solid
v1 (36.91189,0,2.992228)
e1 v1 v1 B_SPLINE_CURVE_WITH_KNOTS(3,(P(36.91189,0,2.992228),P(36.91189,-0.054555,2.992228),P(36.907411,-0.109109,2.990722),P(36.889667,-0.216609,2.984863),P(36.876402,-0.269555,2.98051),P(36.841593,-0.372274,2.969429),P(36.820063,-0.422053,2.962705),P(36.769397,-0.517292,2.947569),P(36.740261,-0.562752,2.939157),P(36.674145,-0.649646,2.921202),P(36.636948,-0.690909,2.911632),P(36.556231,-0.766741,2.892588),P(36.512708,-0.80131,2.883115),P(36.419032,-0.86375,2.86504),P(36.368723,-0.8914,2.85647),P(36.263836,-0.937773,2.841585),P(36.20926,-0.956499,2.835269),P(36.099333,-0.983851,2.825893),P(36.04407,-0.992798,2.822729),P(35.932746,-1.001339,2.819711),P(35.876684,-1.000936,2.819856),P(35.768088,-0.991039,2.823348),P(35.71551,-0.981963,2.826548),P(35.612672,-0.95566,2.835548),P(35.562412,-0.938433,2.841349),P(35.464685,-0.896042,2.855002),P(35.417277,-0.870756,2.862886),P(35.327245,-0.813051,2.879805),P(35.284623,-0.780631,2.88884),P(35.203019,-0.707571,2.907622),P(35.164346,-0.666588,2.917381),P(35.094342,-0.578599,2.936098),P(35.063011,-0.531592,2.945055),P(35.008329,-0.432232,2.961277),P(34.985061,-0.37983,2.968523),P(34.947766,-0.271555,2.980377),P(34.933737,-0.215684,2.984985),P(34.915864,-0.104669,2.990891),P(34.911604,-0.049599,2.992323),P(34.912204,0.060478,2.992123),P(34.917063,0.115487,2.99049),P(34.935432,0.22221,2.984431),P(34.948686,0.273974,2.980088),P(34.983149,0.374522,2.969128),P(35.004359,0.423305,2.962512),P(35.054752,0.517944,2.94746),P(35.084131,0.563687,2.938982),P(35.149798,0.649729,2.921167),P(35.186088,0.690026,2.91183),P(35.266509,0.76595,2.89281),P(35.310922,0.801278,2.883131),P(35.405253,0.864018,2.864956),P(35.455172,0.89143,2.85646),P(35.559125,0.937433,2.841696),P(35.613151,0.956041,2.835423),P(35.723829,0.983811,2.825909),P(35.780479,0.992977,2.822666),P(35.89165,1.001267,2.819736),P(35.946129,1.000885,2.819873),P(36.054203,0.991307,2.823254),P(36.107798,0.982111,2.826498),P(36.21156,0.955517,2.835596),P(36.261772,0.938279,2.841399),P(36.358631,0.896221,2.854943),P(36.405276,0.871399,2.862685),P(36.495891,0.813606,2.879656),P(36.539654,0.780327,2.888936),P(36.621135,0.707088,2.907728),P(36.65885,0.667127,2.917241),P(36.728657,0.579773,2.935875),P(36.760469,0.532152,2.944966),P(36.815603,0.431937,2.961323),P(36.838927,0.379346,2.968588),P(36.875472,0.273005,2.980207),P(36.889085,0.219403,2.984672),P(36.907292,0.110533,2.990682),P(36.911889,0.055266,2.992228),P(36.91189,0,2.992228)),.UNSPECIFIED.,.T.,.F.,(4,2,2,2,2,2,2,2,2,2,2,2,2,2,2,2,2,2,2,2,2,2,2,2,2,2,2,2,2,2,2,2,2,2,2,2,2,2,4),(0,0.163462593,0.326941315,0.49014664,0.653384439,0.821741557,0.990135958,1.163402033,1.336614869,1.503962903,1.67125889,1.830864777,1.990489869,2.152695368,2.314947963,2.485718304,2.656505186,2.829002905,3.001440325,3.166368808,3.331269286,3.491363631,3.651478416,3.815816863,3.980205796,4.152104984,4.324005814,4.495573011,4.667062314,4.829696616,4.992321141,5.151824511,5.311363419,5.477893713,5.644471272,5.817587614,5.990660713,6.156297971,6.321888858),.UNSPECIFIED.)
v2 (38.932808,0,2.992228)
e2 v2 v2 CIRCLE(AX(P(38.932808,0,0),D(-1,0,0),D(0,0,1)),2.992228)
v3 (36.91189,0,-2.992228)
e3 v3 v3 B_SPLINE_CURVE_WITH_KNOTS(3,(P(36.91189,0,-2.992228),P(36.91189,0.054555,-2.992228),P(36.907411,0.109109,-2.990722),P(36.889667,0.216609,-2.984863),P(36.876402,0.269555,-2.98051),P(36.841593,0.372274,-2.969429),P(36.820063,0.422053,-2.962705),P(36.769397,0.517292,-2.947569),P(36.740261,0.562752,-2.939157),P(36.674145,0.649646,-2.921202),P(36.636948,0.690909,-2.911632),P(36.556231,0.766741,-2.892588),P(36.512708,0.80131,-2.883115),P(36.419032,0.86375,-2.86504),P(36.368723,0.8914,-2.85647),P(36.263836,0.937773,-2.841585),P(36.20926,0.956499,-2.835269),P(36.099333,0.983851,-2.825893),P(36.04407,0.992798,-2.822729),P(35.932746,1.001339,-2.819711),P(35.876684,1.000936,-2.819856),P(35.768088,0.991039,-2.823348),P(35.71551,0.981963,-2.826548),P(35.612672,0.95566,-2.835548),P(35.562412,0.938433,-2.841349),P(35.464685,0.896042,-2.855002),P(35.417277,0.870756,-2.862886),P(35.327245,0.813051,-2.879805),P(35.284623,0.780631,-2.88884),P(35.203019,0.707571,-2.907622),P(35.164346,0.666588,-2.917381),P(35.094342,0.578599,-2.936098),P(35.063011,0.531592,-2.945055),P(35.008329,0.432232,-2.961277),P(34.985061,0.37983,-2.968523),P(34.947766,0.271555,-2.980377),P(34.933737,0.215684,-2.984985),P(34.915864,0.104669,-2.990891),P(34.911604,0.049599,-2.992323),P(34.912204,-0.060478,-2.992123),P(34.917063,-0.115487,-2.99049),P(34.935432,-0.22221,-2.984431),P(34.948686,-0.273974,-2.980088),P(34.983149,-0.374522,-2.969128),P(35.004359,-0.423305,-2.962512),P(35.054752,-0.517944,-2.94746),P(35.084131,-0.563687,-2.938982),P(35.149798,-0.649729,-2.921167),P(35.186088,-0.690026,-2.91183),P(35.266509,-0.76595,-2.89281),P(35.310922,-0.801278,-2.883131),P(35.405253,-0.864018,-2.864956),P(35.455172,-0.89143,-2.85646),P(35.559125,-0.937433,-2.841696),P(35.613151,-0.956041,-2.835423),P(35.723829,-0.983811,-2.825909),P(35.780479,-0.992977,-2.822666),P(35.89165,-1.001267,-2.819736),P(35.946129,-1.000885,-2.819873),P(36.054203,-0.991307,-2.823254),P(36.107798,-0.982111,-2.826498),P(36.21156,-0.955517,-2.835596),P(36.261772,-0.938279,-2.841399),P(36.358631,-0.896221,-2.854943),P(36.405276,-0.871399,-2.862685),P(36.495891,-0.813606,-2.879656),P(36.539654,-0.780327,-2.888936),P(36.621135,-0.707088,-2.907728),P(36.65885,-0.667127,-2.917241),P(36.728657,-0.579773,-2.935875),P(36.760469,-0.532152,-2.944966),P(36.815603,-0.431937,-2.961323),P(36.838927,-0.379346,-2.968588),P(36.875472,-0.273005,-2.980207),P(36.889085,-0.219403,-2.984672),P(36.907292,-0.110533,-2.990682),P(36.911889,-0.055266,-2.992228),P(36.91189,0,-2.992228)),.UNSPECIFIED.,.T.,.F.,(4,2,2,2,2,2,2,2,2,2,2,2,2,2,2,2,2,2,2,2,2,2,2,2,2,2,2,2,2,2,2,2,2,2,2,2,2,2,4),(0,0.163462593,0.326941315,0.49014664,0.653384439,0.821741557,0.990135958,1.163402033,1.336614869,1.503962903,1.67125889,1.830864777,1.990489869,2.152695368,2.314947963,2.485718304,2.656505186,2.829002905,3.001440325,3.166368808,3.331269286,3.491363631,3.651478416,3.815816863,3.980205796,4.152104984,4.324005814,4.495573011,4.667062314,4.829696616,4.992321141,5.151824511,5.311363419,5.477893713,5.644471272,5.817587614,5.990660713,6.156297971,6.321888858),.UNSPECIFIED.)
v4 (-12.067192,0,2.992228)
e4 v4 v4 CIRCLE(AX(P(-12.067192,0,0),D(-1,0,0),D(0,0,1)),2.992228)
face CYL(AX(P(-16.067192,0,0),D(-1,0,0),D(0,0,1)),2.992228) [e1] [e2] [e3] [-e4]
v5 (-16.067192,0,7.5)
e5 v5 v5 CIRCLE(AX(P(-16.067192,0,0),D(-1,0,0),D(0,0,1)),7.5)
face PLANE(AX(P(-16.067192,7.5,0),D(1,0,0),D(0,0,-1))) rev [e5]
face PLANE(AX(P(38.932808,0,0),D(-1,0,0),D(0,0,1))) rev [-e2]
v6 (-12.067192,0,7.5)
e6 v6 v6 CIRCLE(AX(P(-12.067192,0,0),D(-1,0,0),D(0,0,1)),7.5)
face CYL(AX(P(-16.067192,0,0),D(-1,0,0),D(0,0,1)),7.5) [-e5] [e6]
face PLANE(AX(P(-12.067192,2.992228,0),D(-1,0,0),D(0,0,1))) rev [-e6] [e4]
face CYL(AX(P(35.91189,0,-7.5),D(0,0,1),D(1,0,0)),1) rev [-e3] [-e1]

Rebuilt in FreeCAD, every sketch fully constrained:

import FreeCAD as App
import Part
import Sketcher

V = App.Vector
Q = App.Units.Quantity

doc = App.newDocument("Part")
body = doc.addObject("PartDesign::Body", "Body")

# Sketch on XY plane
sketch1 = body.newObject("Sketcher::SketchObject", "Sketch")
sketch1.AttachmentSupport = (doc.getObject("XY_Plane"), [""])
sketch1.MapMode = "FlatFace"
sketch1.addGeometry([
    Part.LineSegment(V(-16.1, 0, 0), V(38.9, 0, 0)),  # 0
    Part.LineSegment(V(38.9, 0, 0), V(38.9, 3, 0)),  # 1
    Part.LineSegment(V(38.9, 3, 0), V(-12.1, 3, 0)),  # 2
    Part.LineSegment(V(-12.1, 3, 0), V(-12.1, 7.5, 0)),  # 3
    Part.LineSegment(V(-12.1, 7.5, 0), V(-16.1, 7.5, 0)),  # 4
    Part.LineSegment(V(-16.1, 7.5, 0), V(-16.1, 0, 0)),  # 5
], False)
sketch1.addConstraint([
    Sketcher.Constraint("Coincident", 0, 2, 1, 1),
    Sketcher.Constraint("Coincident", 1, 2, 2, 1),
    Sketcher.Constraint("Coincident", 2, 2, 3, 1),
    Sketcher.Constraint("Coincident", 3, 2, 4, 1),
    Sketcher.Constraint("Coincident", 4, 2, 5, 1),
    Sketcher.Constraint("Coincident", 5, 2, 0, 1),
    Sketcher.Constraint("Horizontal", 0),
    Sketcher.Constraint("Vertical", 1),
    Sketcher.Constraint("Horizontal", 2),
    Sketcher.Constraint("Vertical", 3),
    Sketcher.Constraint("Horizontal", 4),
    Sketcher.Constraint("Vertical", 5),
    Sketcher.Constraint("PointOnObject", 0, 2, -1),
    Sketcher.Constraint("DistanceX", 0, 1, 0, 2, Q("55 mm")),
    Sketcher.Constraint("DistanceX", 2, 2, 2, 1, Q("51 mm")),
    Sketcher.Constraint("DistanceY", 5, 2, 5, 1, Q("7.5 mm")),
    Sketcher.Constraint("DistanceY", 1, 1, 1, 2, Q("2.992228 mm")),
    Sketcher.Constraint("DistanceX", -1, 1, 0, 2, Q("38.932808 mm")),
])
revolution = body.newObject("PartDesign::Revolution", "Revolution")
revolution.Profile = sketch1
revolution.ReferenceAxis = (sketch1, ["H_Axis"])
revolution.Angle = 360

# Sketch on XY plane
sketch2 = body.newObject("Sketcher::SketchObject", "Sketch001")
sketch2.AttachmentSupport = (doc.getObject("XY_Plane"), [""])
sketch2.MapMode = "FlatFace"
sketch2.addGeometry(Part.Circle(V(35.9, 0, 0), V(0, 0, 1), 1), False)
sketch2.addConstraint([
    Sketcher.Constraint("PointOnObject", 0, 3, -1),
    Sketcher.Constraint("Diameter", 0, Q("2 mm")),
    Sketcher.Constraint("DistanceX", -1, 1, 0, 3, Q("35.91189 mm")),
])
pocket1 = body.newObject("PartDesign::Pocket", "Pocket")
pocket1.Profile = sketch2
pocket1.Type = "ThroughAll"
pocket1.Midplane = True

doc.recompute()
